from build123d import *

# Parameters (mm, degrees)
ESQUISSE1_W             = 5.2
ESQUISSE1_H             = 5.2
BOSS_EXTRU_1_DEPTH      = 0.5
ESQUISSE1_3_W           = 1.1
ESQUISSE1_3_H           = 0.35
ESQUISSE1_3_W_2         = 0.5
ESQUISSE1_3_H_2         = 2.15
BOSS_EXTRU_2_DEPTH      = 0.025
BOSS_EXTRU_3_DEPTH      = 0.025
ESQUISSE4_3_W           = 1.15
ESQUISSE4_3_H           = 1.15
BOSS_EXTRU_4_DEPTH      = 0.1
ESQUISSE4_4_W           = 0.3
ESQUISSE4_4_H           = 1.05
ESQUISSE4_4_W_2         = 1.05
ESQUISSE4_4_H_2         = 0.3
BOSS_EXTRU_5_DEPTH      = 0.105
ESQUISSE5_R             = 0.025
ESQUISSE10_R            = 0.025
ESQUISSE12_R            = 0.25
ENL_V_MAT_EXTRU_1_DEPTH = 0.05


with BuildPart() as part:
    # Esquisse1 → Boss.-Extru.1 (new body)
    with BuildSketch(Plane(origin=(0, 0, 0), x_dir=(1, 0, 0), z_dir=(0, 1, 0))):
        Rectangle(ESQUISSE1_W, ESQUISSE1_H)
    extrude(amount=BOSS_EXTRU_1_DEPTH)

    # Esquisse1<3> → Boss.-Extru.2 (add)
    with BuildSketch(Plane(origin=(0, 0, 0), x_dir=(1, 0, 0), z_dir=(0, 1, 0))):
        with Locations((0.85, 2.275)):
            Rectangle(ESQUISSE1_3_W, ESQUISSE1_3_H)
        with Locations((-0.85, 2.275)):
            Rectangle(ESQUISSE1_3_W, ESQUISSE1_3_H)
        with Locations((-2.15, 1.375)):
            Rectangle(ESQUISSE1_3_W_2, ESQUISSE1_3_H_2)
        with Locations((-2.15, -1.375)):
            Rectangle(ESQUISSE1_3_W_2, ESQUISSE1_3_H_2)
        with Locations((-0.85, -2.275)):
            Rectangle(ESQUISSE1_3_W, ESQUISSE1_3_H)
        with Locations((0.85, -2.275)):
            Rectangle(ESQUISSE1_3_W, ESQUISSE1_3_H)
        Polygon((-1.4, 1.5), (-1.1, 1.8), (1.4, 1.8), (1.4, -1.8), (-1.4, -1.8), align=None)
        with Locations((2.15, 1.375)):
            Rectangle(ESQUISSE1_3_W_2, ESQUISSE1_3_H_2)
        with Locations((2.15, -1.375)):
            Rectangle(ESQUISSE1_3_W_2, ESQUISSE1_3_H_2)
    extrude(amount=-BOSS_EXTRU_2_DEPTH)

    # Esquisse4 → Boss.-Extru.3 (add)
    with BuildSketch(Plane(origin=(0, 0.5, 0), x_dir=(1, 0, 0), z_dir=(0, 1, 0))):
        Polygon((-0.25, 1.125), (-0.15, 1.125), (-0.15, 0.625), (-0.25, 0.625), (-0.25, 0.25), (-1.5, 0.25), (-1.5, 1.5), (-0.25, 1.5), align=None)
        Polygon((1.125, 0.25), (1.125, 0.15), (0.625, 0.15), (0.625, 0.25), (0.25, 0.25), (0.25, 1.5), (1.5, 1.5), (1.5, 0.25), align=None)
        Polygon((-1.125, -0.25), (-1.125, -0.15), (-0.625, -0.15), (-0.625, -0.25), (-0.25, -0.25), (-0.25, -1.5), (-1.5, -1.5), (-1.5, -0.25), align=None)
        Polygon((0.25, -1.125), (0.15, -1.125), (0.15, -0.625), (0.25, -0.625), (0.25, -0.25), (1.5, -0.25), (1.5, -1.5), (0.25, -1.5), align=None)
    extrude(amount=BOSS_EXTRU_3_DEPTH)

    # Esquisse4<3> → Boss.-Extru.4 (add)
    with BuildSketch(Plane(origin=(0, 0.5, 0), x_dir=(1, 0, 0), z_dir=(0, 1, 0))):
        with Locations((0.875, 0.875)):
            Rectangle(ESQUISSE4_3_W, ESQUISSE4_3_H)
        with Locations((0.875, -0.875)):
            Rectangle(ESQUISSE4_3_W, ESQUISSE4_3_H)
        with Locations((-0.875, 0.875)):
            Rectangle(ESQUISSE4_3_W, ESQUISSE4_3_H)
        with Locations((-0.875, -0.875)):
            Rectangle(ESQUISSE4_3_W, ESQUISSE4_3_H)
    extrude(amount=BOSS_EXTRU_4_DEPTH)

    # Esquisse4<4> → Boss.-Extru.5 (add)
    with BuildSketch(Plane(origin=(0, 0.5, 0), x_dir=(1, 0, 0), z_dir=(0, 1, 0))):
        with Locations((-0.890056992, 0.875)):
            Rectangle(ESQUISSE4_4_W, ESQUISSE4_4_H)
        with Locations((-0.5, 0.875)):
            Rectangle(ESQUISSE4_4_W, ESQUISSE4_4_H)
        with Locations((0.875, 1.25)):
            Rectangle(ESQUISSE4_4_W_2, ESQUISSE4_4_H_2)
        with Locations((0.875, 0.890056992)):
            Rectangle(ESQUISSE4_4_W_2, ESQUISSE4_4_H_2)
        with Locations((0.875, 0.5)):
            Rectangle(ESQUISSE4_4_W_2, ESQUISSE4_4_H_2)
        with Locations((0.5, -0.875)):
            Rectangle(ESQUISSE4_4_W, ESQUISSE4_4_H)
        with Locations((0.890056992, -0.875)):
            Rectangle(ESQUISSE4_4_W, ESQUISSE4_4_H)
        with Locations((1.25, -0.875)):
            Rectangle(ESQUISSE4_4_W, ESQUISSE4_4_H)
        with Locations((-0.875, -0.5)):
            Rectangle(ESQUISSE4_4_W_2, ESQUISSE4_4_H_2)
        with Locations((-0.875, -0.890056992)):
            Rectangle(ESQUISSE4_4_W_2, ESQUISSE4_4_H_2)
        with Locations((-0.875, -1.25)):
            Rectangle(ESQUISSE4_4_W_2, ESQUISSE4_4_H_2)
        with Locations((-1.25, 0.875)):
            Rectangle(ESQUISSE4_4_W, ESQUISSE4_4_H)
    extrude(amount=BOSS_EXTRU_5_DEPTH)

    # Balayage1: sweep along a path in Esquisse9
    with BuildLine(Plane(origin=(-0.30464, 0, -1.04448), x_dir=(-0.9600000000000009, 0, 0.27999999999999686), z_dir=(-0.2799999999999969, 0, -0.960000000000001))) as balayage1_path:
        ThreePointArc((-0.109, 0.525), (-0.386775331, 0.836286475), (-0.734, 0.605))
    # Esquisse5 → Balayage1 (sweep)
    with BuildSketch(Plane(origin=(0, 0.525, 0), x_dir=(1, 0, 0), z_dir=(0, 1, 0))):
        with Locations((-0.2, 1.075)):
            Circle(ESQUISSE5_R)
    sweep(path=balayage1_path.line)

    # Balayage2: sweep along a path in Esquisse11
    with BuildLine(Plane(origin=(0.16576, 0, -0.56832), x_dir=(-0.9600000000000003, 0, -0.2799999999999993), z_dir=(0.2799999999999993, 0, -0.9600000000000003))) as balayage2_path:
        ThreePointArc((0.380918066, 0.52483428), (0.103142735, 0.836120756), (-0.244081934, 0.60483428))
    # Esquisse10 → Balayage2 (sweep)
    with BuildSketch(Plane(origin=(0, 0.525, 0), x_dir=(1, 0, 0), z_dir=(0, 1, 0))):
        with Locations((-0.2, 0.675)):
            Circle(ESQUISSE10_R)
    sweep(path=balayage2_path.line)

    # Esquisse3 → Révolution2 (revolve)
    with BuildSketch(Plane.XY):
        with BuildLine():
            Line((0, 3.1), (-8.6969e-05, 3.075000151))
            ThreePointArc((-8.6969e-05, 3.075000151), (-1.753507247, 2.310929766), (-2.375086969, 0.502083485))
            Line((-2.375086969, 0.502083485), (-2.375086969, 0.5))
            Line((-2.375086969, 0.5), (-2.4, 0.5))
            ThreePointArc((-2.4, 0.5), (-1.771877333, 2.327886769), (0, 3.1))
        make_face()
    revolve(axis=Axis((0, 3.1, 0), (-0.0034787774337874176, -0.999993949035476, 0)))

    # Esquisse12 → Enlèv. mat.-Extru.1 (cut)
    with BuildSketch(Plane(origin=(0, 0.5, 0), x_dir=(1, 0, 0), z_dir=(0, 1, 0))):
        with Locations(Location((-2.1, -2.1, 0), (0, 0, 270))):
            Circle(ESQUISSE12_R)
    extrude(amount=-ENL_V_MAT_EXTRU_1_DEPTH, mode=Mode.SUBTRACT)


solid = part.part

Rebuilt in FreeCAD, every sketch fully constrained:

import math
import FreeCAD as App
import Part
import Sketcher
from FreeCAD import Vector
Q = App.Units.Quantity

doc = App.newDocument("Part")
params = doc.addObject("Spreadsheet::Sheet", "Params")
for row, (alias, value) in enumerate([
    ("sketch1_width", "5.2 mm"),
    ("pad1_length", "0.5 mm"),
    ("sketch2_width", "1.1 mm"),
    ("sketch2_width2", "0.5 mm"),
    ("sketch2_width3", "2.8 mm"),
    ("sketch2_width4", "2.5 mm"),
    ("sketch2_height", "3.3 mm"),
    ("pad2_length", "0.025 mm"),
    ("sketch3_width", "0.1 mm"),
    ("sketch3_width2", "0.5 mm"),
    ("sketch3_width3", "1.25 mm"),
    ("pad3_length", "0.025 mm"),
    ("sketch4_width", "1.15 mm"),
    ("pad4_length", "0.1 mm"),
    ("sketch5_width", "0.3 mm"),
    ("sketch5_width2", "1.05 mm"),
    ("pad5_length", "0.105 mm"),
    ("sketch6_diameter", "0.05 mm"),
    ("sketch7_height", "0.08 mm"),
    ("sketch8_diameter", "0.05 mm"),
    ("sketch9_height", "0.08 mm"),
    ("sketch10_radius", "2.4 mm"),
    ("revolution_angle", "360 deg"),
    ("sketch11_diameter", "0.5 mm"),
    ("pocket1_length", "0.05 mm"),
], start=1):
    params.set(f"A{row}", alias)
    params.set(f"B{row}", "=" + value)
    params.setAlias(f"B{row}", alias)

body = doc.addObject("PartDesign::Body", "Body")

# Sketch on XZ plane
sketch1 = body.newObject("Sketcher::SketchObject", "Sketch")
sketch1.AttachmentSupport = (doc.getObject("XZ_Plane"), [""])
sketch1.MapMode = "FlatFace"
sketch1.addGeometry(Part.LineSegment(Vector(-2.6, -2.6, 0), Vector(-2.6, 2.6, 0)), False)
sketch1.addGeometry(Part.LineSegment(Vector(-2.6, 2.6, 0), Vector(2.6, 2.6, 0)), False)
sketch1.addGeometry(Part.LineSegment(Vector(2.6, 2.6, 0), Vector(2.6, -2.6, 0)), False)
sketch1.addGeometry(Part.LineSegment(Vector(2.6, -2.6, 0), Vector(-2.6, -2.6, 0)), False)
sketch1.addConstraint(Sketcher.Constraint("Coincident", 0, 2, 1, 1))
sketch1.addConstraint(Sketcher.Constraint("Coincident", 1, 2, 2, 1))
sketch1.addConstraint(Sketcher.Constraint("Coincident", 2, 2, 3, 1))
sketch1.addConstraint(Sketcher.Constraint("Coincident", 3, 2, 0, 1))
sketch1.addConstraint(Sketcher.Constraint("Vertical", 0))
sketch1.addConstraint(Sketcher.Constraint("Horizontal", 1))
sketch1.addConstraint(Sketcher.Constraint("Vertical", 2))
sketch1.addConstraint(Sketcher.Constraint("Horizontal", 3))
sketch1.addConstraint(Sketcher.Constraint("Symmetric", 0, 2, 2, 2, -1, 1))
sketch1.addConstraint(Sketcher.Constraint("Equal", 3, 0))
sketch1.addConstraint(Sketcher.Constraint("DistanceX", 1, 1, 1, 2, 5.2))
sketch1.setExpression("Constraints[10]", "Params.sketch1_width")
pad1 = body.newObject("PartDesign::Pad", "Pad")
pad1.Profile = sketch1
pad1.setExpression("Length", "Params.pad1_length")
pad1.Reversed = True

# Sketch on XZ plane
sketch2 = body.newObject("Sketcher::SketchObject", "Sketch001")
sketch2.AttachmentSupport = (doc.getObject("XZ_Plane"), [""])
sketch2.MapMode = "FlatFace"
sketch2.addGeometry(Part.LineSegment(Vector(0.3, -2.45, 0), Vector(0.3, -2.1, 0)), False)
sketch2.addGeometry(Part.LineSegment(Vector(0.3, -2.1, 0), Vector(1.4, -2.1, 0)), False)
sketch2.addGeometry(Part.LineSegment(Vector(1.4, -2.1, 0), Vector(1.4, -2.45, 0)), False)
sketch2.addGeometry(Part.LineSegment(Vector(1.4, -2.45, 0), Vector(0.3, -2.45, 0)), False)
sketch2.addGeometry(Part.LineSegment(Vector(-1.4, -2.45, 0), Vector(-1.4, -2.1, 0)), False)
sketch2.addGeometry(Part.LineSegment(Vector(-1.4, -2.1, 0), Vector(-0.3, -2.1, 0)), False)
sketch2.addGeometry(Part.LineSegment(Vector(-0.3, -2.1, 0), Vector(-0.3, -2.45, 0)), False)
sketch2.addGeometry(Part.LineSegment(Vector(-0.3, -2.45, 0), Vector(-1.4, -2.45, 0)), False)
sketch2.addGeometry(Part.LineSegment(Vector(-2.4, -2.45, 0), Vector(-2.4, -0.3, 0)), False)
sketch2.addGeometry(Part.LineSegment(Vector(-2.4, -0.3, 0), Vector(-1.9, -0.3, 0)), False)
sketch2.addGeometry(Part.LineSegment(Vector(-1.9, -0.3, 0), Vector(-1.9, -2.45, 0)), False)
sketch2.addGeometry(Part.LineSegment(Vector(-1.9, -2.45, 0), Vector(-2.4, -2.45, 0)), False)
sketch2.addGeometry(Part.LineSegment(Vector(-2.4, 0.3, 0), Vector(-2.4, 2.45, 0)), False)
sketch2.addGeometry(Part.LineSegment(Vector(-2.4, 2.45, 0), Vector(-1.9, 2.45, 0)), False)
sketch2.addGeometry(Part.LineSegment(Vector(-1.9, 2.45, 0), Vector(-1.9, 0.3, 0)), False)
sketch2.addGeometry(Part.LineSegment(Vector(-1.9, 0.3, 0), Vector(-2.4, 0.3, 0)), False)
sketch2.addGeometry(Part.LineSegment(Vector(-1.4, 2.1, 0), Vector(-1.4, 2.45, 0)), False)
sketch2.addGeometry(Part.LineSegment(Vector(-1.4, 2.45, 0), Vector(-0.3, 2.45, 0)), False)
sketch2.addGeometry(Part.LineSegment(Vector(-0.3, 2.45, 0), Vector(-0.3, 2.1, 0)), False)
sketch2.addGeometry(Part.LineSegment(Vector(-0.3, 2.1, 0), Vector(-1.4, 2.1, 0)), False)
sketch2.addGeometry(Part.LineSegment(Vector(0.3, 2.1, 0), Vector(0.3, 2.45, 0)), False)
sketch2.addGeometry(Part.LineSegment(Vector(0.3, 2.45, 0), Vector(1.4, 2.45, 0)), False)
sketch2.addGeometry(Part.LineSegment(Vector(1.4, 2.45, 0), Vector(1.4, 2.1, 0)), False)
sketch2.addGeometry(Part.LineSegment(Vector(1.4, 2.1, 0), Vector(0.3, 2.1, 0)), False)
sketch2.addGeometry(Part.LineSegment(Vector(-1.1, -1.8, 0), Vector(-1.4, -1.5, 0)), False)
sketch2.addGeometry(Part.LineSegment(Vector(-1.4, -1.5, 0), Vector(-1.4, 1.8, 0)), False)
sketch2.addGeometry(Part.LineSegment(Vector(-1.4, 1.8, 0), Vector(1.4, 1.8, 0)), False)
sketch2.addGeometry(Part.LineSegment(Vector(1.4, 1.8, 0), Vector(1.4, -1.8, 0)), False)
sketch2.addGeometry(Part.LineSegment(Vector(1.4, -1.8, 0), Vector(-1.1, -1.8, 0)), False)
sketch2.addGeometry(Part.LineSegment(Vector(1.9, -2.45, 0), Vector(1.9, -0.3, 0)), False)
sketch2.addGeometry(Part.LineSegment(Vector(1.9, -0.3, 0), Vector(2.4, -0.3, 0)), False)
sketch2.addGeometry(Part.LineSegment(Vector(2.4, -0.3, 0), Vector(2.4, -2.45, 0)), False)
sketch2.addGeometry(Part.LineSegment(Vector(2.4, -2.45, 0), Vector(1.9, -2.45, 0)), False)
sketch2.addGeometry(Part.LineSegment(Vector(1.9, 0.3, 0), Vector(1.9, 2.45, 0)), False)
sketch2.addGeometry(Part.LineSegment(Vector(1.9, 2.45, 0), Vector(2.4, 2.45, 0)), False)
sketch2.addGeometry(Part.LineSegment(Vector(2.4, 2.45, 0), Vector(2.4, 0.3, 0)), False)
sketch2.addGeometry(Part.LineSegment(Vector(2.4, 0.3, 0), Vector(1.9, 0.3, 0)), False)
sketch2.addConstraint(Sketcher.Constraint("Coincident", 0, 2, 1, 1))
sketch2.addConstraint(Sketcher.Constraint("Coincident", 1, 2, 2, 1))
sketch2.addConstraint(Sketcher.Constraint("Coincident", 2, 2, 3, 1))
sketch2.addConstraint(Sketcher.Constraint("Coincident", 3, 2, 0, 1))
sketch2.addConstraint(Sketcher.Constraint("Coincident", 4, 2, 5, 1))
sketch2.addConstraint(Sketcher.Constraint("Coincident", 5, 2, 6, 1))
sketch2.addConstraint(Sketcher.Constraint("Coincident", 6, 2, 7, 1))
sketch2.addConstraint(Sketcher.Constraint("Coincident", 7, 2, 4, 1))
sketch2.addConstraint(Sketcher.Constraint("Coincident", 8, 2, 9, 1))
sketch2.addConstraint(Sketcher.Constraint("Coincident", 9, 2, 10, 1))
sketch2.addConstraint(Sketcher.Constraint("Coincident", 10, 2, 11, 1))
sketch2.addConstraint(Sketcher.Constraint("Coincident", 11, 2, 8, 1))
sketch2.addConstraint(Sketcher.Constraint("Coincident", 12, 2, 13, 1))
sketch2.addConstraint(Sketcher.Constraint("Coincident", 13, 2, 14, 1))
sketch2.addConstraint(Sketcher.Constraint("Coincident", 14, 2, 15, 1))
sketch2.addConstraint(Sketcher.Constraint("Coincident", 15, 2, 12, 1))
sketch2.addConstraint(Sketcher.Constraint("Coincident", 16, 2, 17, 1))
sketch2.addConstraint(Sketcher.Constraint("Coincident", 17, 2, 18, 1))
sketch2.addConstraint(Sketcher.Constraint("Coincident", 18, 2, 19, 1))
sketch2.addConstraint(Sketcher.Constraint("Coincident", 19, 2, 16, 1))
sketch2.addConstraint(Sketcher.Constraint("Coincident", 20, 2, 21, 1))
sketch2.addConstraint(Sketcher.Constraint("Coincident", 21, 2, 22, 1))
sketch2.addConstraint(Sketcher.Constraint("Coincident", 22, 2, 23, 1))
sketch2.addConstraint(Sketcher.Constraint("Coincident", 23, 2, 20, 1))
sketch2.addConstraint(Sketcher.Constraint("Coincident", 24, 2, 25, 1))
sketch2.addConstraint(Sketcher.Constraint("Coincident", 25, 2, 26, 1))
sketch2.addConstraint(Sketcher.Constraint("Coincident", 26, 2, 27, 1))
sketch2.addConstraint(Sketcher.Constraint("Coincident", 27, 2, 28, 1))
sketch2.addConstraint(Sketcher.Constraint("Coincident", 28, 2, 24, 1))
sketch2.addConstraint(Sketcher.Constraint("Coincident", 29, 2, 30, 1))
sketch2.addConstraint(Sketcher.Constraint("Coincident", 30, 2, 31, 1))
sketch2.addConstraint(Sketcher.Constraint("Coincident", 31, 2, 32, 1))
sketch2.addConstraint(Sketcher.Constraint("Coincident", 32, 2, 29, 1))
sketch2.addConstraint(Sketcher.Constraint("Coincident", 33, 2, 34, 1))
sketch2.addConstraint(Sketcher.Constraint("Coincident", 34, 2, 35, 1))
sketch2.addConstraint(Sketcher.Constraint("Coincident", 35, 2, 36, 1))
sketch2.addConstraint(Sketcher.Constraint("Coincident", 36, 2, 33, 1))
sketch2.addConstraint(Sketcher.Constraint("Vertical", 0))
sketch2.addConstraint(Sketcher.Constraint("Horizontal", 1))
sketch2.addConstraint(Sketcher.Constraint("Vertical", 2))
sketch2.addConstraint(Sketcher.Constraint("Horizontal", 3))
sketch2.addConstraint(Sketcher.Constraint("Vertical", 4))
sketch2.addConstraint(Sketcher.Constraint("Horizontal", 5))
sketch2.addConstraint(Sketcher.Constraint("Vertical", 6))
sketch2.addConstraint(Sketcher.Constraint("Horizontal", 7))
sketch2.addConstraint(Sketcher.Constraint("Vertical", 8))
sketch2.addConstraint(Sketcher.Constraint("Horizontal", 9))
sketch2.addConstraint(Sketcher.Constraint("Vertical", 10))
sketch2.addConstraint(Sketcher.Constraint("Horizontal", 11))
sketch2.addConstraint(Sketcher.Constraint("Vertical", 12))
sketch2.addConstraint(Sketcher.Constraint("Horizontal", 13))
sketch2.addConstraint(Sketcher.Constraint("Vertical", 14))
sketch2.addConstraint(Sketcher.Constraint("Horizontal", 15))
sketch2.addConstraint(Sketcher.Constraint("Vertical", 16))
sketch2.addConstraint(Sketcher.Constraint("Horizontal", 17))
sketch2.addConstraint(Sketcher.Constraint("Vertical", 18))
sketch2.addConstraint(Sketcher.Constraint("Horizontal", 19))
sketch2.addConstraint(Sketcher.Constraint("Vertical", 20))
sketch2.addConstraint(Sketcher.Constraint("Horizontal", 21))
sketch2.addConstraint(Sketcher.Constraint("Vertical", 22))
sketch2.addConstraint(Sketcher.Constraint("Horizontal", 23))
sketch2.addConstraint(Sketcher.Constraint("Vertical", 25))
sketch2.addConstraint(Sketcher.Constraint("Horizontal", 26))
sketch2.addConstraint(Sketcher.Constraint("Vertical", 27))
sketch2.addConstraint(Sketcher.Constraint("Horizontal", 28))
sketch2.addConstraint(Sketcher.Constraint("Vertical", 29))
sketch2.addConstraint(Sketcher.Constraint("Horizontal", 30))
sketch2.addConstraint(Sketcher.Constraint("Vertical", 31))
sketch2.addConstraint(Sketcher.Constraint("Horizontal", 32))
sketch2.addConstraint(Sketcher.Constraint("Vertical", 33))
sketch2.addConstraint(Sketcher.Constraint("Horizontal", 34))
sketch2.addConstraint(Sketcher.Constraint("Vertical", 35))
sketch2.addConstraint(Sketcher.Constraint("Horizontal", 36))
sketch2.addConstraint(Sketcher.Constraint("Symmetric", 2, 2, 16, 2, -1, 1))
sketch2.addConstraint(Sketcher.Constraint("Symmetric", 0, 2, 18, 2, -1, 1))
sketch2.addConstraint(Sketcher.Constraint("Symmetric", 6, 2, 20, 2, -1, 1))
sketch2.addConstraint(Sketcher.Constraint("Symmetric", 4, 2, 22, 2, -1, 1))
sketch2.addConstraint(Sketcher.Constraint("Symmetric", 25, 2, 27, 2, -1, 1))
sketch2.addConstraint(Sketcher.Constraint("Symmetric", 14, 2, 29, 2, -1, 1))
sketch2.addConstraint(Sketcher.Constraint("Symmetric", 12, 2, 31, 2, -1, 1))
sketch2.addConstraint(Sketcher.Constraint("Symmetric", 10, 2, 33, 2, -1, 1))
sketch2.addConstraint(Sketcher.Constraint("Symmetric", 8, 2, 35, 2, -1, 1))
sketch2.addConstraint(Sketcher.Constraint("Symmetric", 1, 2, 4, 2, -2))
sketch2.addConstraint(Sketcher.Constraint("Symmetric", 3, 2, 6, 2, -2))
sketch2.addConstraint(Sketcher.Constraint("Symmetric", 9, 2, 29, 2, -2))
sketch2.addConstraint(Sketcher.Constraint("Symmetric", 11, 2, 31, 2, -2))
sketch2.addConstraint(Sketcher.Constraint("Horizontal", 7, 2, 10, 2))
sketch2.addConstraint(Sketcher.Constraint("Vertical", 19, 2, 24, 2))
sketch2.addConstraint(Sketcher.Constraint("Angle", 24, Q("135 deg")))
sketch2.addConstraint(Sketcher.Constraint("DistanceX", 1, 1, 1, 2, 1.1))
sketch2.addConstraint(Sketcher.Constraint("DistanceX", 9, 1, 9, 2, 0.5))
sketch2.addConstraint(Sketcher.Constraint("DistanceX", 26, 1, 26, 2, 2.8))
sketch2.addConstraint(Sketcher.Constraint("DistanceX", 28, 2, 28, 1, 2.5))
sketch2.addConstraint(Sketcher.Constraint("DistanceY", 25, 1, 25, 2, 3.3))
sketch2.addConstraint(Sketcher.Constraint("DistanceX", 8, 2, 4, 2, 1.0))
sketch2.addConstraint(Sketcher.Constraint("DistanceY", 0, 1, 0, 2, 0.35))
sketch2.addConstraint(Sketcher.Constraint("DistanceY", 8, 1, 8, 2, 2.15))
sketch2.addConstraint(Sketcher.Constraint("DistanceY", 0, 2, -1, 1, 2.1))
sketch2.setExpression("Constraints[89]", "Params.sketch2_width")
sketch2.setExpression("Constraints[90]", "Params.sketch2_width2")
sketch2.setExpression("Constraints[91]", "Params.sketch2_width3")
sketch2.setExpression("Constraints[92]", "Params.sketch2_width4")
sketch2.setExpression("Constraints[93]", "Params.sketch2_height")
pad2 = body.newObject("PartDesign::Pad", "Pad001")
pad2.Profile = sketch2
pad2.setExpression("Length", "Params.pad2_length")

# Sketch on XZ plane
sketch3 = body.newObject("Sketcher::SketchObject", "Sketch002")
sketch3.AttachmentSupport = (doc.getObject("XZ_Plane"), [""])
sketch3.MapMode = "FlatFace"
sketch3.AttachmentOffset = App.Placement(Vector(0, 0, -0.5), App.Rotation())
sketch3.addGeometry(Part.LineSegment(Vector(-0.15, -1.125, 0), Vector(-0.25, -1.125, 0)), False)
sketch3.addGeometry(Part.LineSegment(Vector(-0.25, -1.125, 0), Vector(-0.25, -1.5, 0)), False)
sketch3.addGeometry(Part.LineSegment(Vector(-0.25, -1.5, 0), Vector(-1.5, -1.5, 0)), False)
sketch3.addGeometry(Part.LineSegment(Vector(-1.5, -1.5, 0), Vector(-1.5, -0.25, 0)), False)
sketch3.addGeometry(Part.LineSegment(Vector(-1.5, -0.25, 0), Vector(-0.25, -0.25, 0)), False)
sketch3.addGeometry(Part.LineSegment(Vector(-0.25, -0.25, 0), Vector(-0.25, -0.625, 0)), False)
sketch3.addGeometry(Part.LineSegment(Vector(-0.25, -0.625, 0), Vector(-0.15, -0.625, 0)), False)
sketch3.addGeometry(Part.LineSegment(Vector(-0.15, -0.625, 0), Vector(-0.15, -1.125, 0)), False)
sketch3.addGeometry(Part.LineSegment(Vector(1.125, -0.15, 0), Vector(1.125, -0.25, 0)), False)
sketch3.addGeometry(Part.LineSegment(Vector(1.125, -0.25, 0), Vector(1.5, -0.25, 0)), False)
sketch3.addGeometry(Part.LineSegment(Vector(1.5, -0.25, 0), Vector(1.5, -1.5, 0)), False)
sketch3.addGeometry(Part.LineSegment(Vector(1.5, -1.5, 0), Vector(0.25, -1.5, 0)), False)
sketch3.addGeometry(Part.LineSegment(Vector(0.25, -1.5, 0), Vector(0.25, -0.25, 0)), False)
sketch3.addGeometry(Part.LineSegment(Vector(0.25, -0.25, 0), Vector(0.625, -0.25, 0)), False)
sketch3.addGeometry(Part.LineSegment(Vector(0.625, -0.25, 0), Vector(0.625, -0.15, 0)), False)
sketch3.addGeometry(Part.LineSegment(Vector(0.625, -0.15, 0), Vector(1.125, -0.15, 0)), False)
sketch3.addGeometry(Part.LineSegment(Vector(-1.125, 0.15, 0), Vector(-1.125, 0.25, 0)), False)
sketch3.addGeometry(Part.LineSegment(Vector(-1.125, 0.25, 0), Vector(-1.5, 0.25, 0)), False)
sketch3.addGeometry(Part.LineSegment(Vector(-1.5, 0.25, 0), Vector(-1.5, 1.5, 0)), False)
sketch3.addGeometry(Part.LineSegment(Vector(-1.5, 1.5, 0), Vector(-0.25, 1.5, 0)), False)
sketch3.addGeometry(Part.LineSegment(Vector(-0.25, 1.5, 0), Vector(-0.25, 0.25, 0)), False)
sketch3.addGeometry(Part.LineSegment(Vector(-0.25, 0.25, 0), Vector(-0.625, 0.25, 0)), False)
sketch3.addGeometry(Part.LineSegment(Vector(-0.625, 0.25, 0), Vector(-0.625, 0.15, 0)), False)
sketch3.addGeometry(Part.LineSegment(Vector(-0.625, 0.15, 0), Vector(-1.125, 0.15, 0)), False)
sketch3.addGeometry(Part.LineSegment(Vector(0.15, 1.125, 0), Vector(0.25, 1.125, 0)), False)
sketch3.addGeometry(Part.LineSegment(Vector(0.25, 1.125, 0), Vector(0.25, 1.5, 0)), False)
sketch3.addGeometry(Part.LineSegment(Vector(0.25, 1.5, 0), Vector(1.5, 1.5, 0)), False)
sketch3.addGeometry(Part.LineSegment(Vector(1.5, 1.5, 0), Vector(1.5, 0.25, 0)), False)
sketch3.addGeometry(Part.LineSegment(Vector(1.5, 0.25, 0), Vector(0.25, 0.25, 0)), False)
sketch3.addGeometry(Part.LineSegment(Vector(0.25, 0.25, 0), Vector(0.25, 0.625, 0)), False)
sketch3.addGeometry(Part.LineSegment(Vector(0.25, 0.625, 0), Vector(0.15, 0.625, 0)), False)
sketch3.addGeometry(Part.LineSegment(Vector(0.15, 0.625, 0), Vector(0.15, 1.125, 0)), False)
sketch3.addConstraint(Sketcher.Constraint("Coincident", 0, 2, 1, 1))
sketch3.addConstraint(Sketcher.Constraint("Coincident", 1, 2, 2, 1))
sketch3.addConstraint(Sketcher.Constraint("Coincident", 2, 2, 3, 1))
sketch3.addConstraint(Sketcher.Constraint("Coincident", 3, 2, 4, 1))
sketch3.addConstraint(Sketcher.Constraint("Coincident", 4, 2, 5, 1))
sketch3.addConstraint(Sketcher.Constraint("Coincident", 5, 2, 6, 1))
sketch3.addConstraint(Sketcher.Constraint("Coincident", 6, 2, 7, 1))
sketch3.addConstraint(Sketcher.Constraint("Coincident", 7, 2, 0, 1))
sketch3.addConstraint(Sketcher.Constraint("Coincident", 8, 2, 9, 1))
sketch3.addConstraint(Sketcher.Constraint("Coincident", 9, 2, 10, 1))
sketch3.addConstraint(Sketcher.Constraint("Coincident", 10, 2, 11, 1))
sketch3.addConstraint(Sketcher.Constraint("Coincident", 11, 2, 12, 1))
sketch3.addConstraint(Sketcher.Constraint("Coincident", 12, 2, 13, 1))
sketch3.addConstraint(Sketcher.Constraint("Coincident", 13, 2, 14, 1))
sketch3.addConstraint(Sketcher.Constraint("Coincident", 14, 2, 15, 1))
sketch3.addConstraint(Sketcher.Constraint("Coincident", 15, 2, 8, 1))
sketch3.addConstraint(Sketcher.Constraint("Coincident", 16, 2, 17, 1))
sketch3.addConstraint(Sketcher.Constraint("Coincident", 17, 2, 18, 1))
sketch3.addConstraint(Sketcher.Constraint("Coincident", 18, 2, 19, 1))
sketch3.addConstraint(Sketcher.Constraint("Coincident", 19, 2, 20, 1))
sketch3.addConstraint(Sketcher.Constraint("Coincident", 20, 2, 21, 1))
sketch3.addConstraint(Sketcher.Constraint("Coincident", 21, 2, 22, 1))
sketch3.addConstraint(Sketcher.Constraint("Coincident", 22, 2, 23, 1))
sketch3.addConstraint(Sketcher.Constraint("Coincident", 23, 2, 16, 1))
sketch3.addConstraint(Sketcher.Constraint("Coincident", 24, 2, 25, 1))
sketch3.addConstraint(Sketcher.Constraint("Coincident", 25, 2, 26, 1))
sketch3.addConstraint(Sketcher.Constraint("Coincident", 26, 2, 27, 1))
sketch3.addConstraint(Sketcher.Constraint("Coincident", 27, 2, 28, 1))
sketch3.addConstraint(Sketcher.Constraint("Coincident", 28, 2, 29, 1))
sketch3.addConstraint(Sketcher.Constraint("Coincident", 29, 2, 30, 1))
sketch3.addConstraint(Sketcher.Constraint("Coincident", 30, 2, 31, 1))
sketch3.addConstraint(Sketcher.Constraint("Coincident", 31, 2, 24, 1))
sketch3.addConstraint(Sketcher.Constraint("Horizontal", 0))
sketch3.addConstraint(Sketcher.Constraint("Vertical", 1))
sketch3.addConstraint(Sketcher.Constraint("Horizontal", 2))
sketch3.addConstraint(Sketcher.Constraint("Vertical", 3))
sketch3.addConstraint(Sketcher.Constraint("Horizontal", 4))
sketch3.addConstraint(Sketcher.Constraint("Vertical", 5))
sketch3.addConstraint(Sketcher.Constraint("Horizontal", 6))
sketch3.addConstraint(Sketcher.Constraint("Vertical", 7))
sketch3.addConstraint(Sketcher.Constraint("Vertical", 8))
sketch3.addConstraint(Sketcher.Constraint("Horizontal", 9))
sketch3.addConstraint(Sketcher.Constraint("Vertical", 10))
sketch3.addConstraint(Sketcher.Constraint("Horizontal", 11))
sketch3.addConstraint(Sketcher.Constraint("Vertical", 12))
sketch3.addConstraint(Sketcher.Constraint("Horizontal", 13))
sketch3.addConstraint(Sketcher.Constraint("Vertical", 14))
sketch3.addConstraint(Sketcher.Constraint("Horizontal", 15))
sketch3.addConstraint(Sketcher.Constraint("Vertical", 16))
sketch3.addConstraint(Sketcher.Constraint("Horizontal", 17))
sketch3.addConstraint(Sketcher.Constraint("Vertical", 18))
sketch3.addConstraint(Sketcher.Constraint("Horizontal", 19))
sketch3.addConstraint(Sketcher.Constraint("Vertical", 20))
sketch3.addConstraint(Sketcher.Constraint("Horizontal", 21))
sketch3.addConstraint(Sketcher.Constraint("Vertical", 22))
sketch3.addConstraint(Sketcher.Constraint("Horizontal", 23))
sketch3.addConstraint(Sketcher.Constraint("Horizontal", 24))
sketch3.addConstraint(Sketcher.Constraint("Vertical", 25))
sketch3.addConstraint(Sketcher.Constraint("Horizontal", 26))
sketch3.addConstraint(Sketcher.Constraint("Vertical", 27))
sketch3.addConstraint(Sketcher.Constraint("Horizontal", 28))
sketch3.addConstraint(Sketcher.Constraint("Vertical", 29))
sketch3.addConstraint(Sketcher.Constraint("Horizontal", 30))
sketch3.addConstraint(Sketcher.Constraint("Vertical", 31))
sketch3.addConstraint(Sketcher.Constraint("Symmetric", 8, 2, 16, 2, -1, 1))
sketch3.addConstraint(Sketcher.Constraint("Symmetric", 10, 2, 18, 2, -1, 1))
sketch3.addConstraint(Sketcher.Constraint("Symmetric", 12, 2, 20, 2, -1, 1))
sketch3.addConstraint(Sketcher.Constraint("Symmetric", 14, 2, 22, 2, -1, 1))
sketch3.addConstraint(Sketcher.Constraint("Symmetric", 0, 2, 24, 2, -1, 1))
sketch3.addConstraint(Sketcher.Constraint("Symmetric", 2, 2, 26, 2, -1, 1))
sketch3.addConstraint(Sketcher.Constraint("Symmetric", 4, 2, 28, 2, -1, 1))
sketch3.addConstraint(Sketcher.Constraint("Symmetric", 6, 2, 30, 2, -1, 1))
sketch3.addConstraint(Sketcher.Constraint("Symmetric", 3, 2, 9, 2, -2))
sketch3.addConstraint(Sketcher.Constraint("Symmetric", 1, 2, 11, 2, -2))
sketch3.addConstraint(Sketcher.Constraint("Symmetric", 4, 2, 12, 2, -2))
sketch3.addConstraint(Sketcher.Constraint("Equal", 9, 13))
sketch3.addConstraint(Sketcher.Constraint("Equal", 21, 1))
sketch3.addConstraint(Sketcher.Constraint("Equal", 28, 3))
sketch3.addConstraint(Sketcher.Constraint("Equal", 1, 5))
sketch3.addConstraint(Sketcher.Constraint("Equal", 30, 8))
sketch3.addConstraint(Sketcher.Constraint("DistanceX", 0, 2, 0, 1, 0.1))
sketch3.addConstraint(Sketcher.Constraint("DistanceX", 15, 1, 15, 2, 0.5))
sketch3.addConstraint(Sketcher.Constraint("DistanceX", 2, 2, 2, 1, 1.25))
sketch3.addConstraint(Sketcher.Constraint("DistanceY", 1, 2, -1, 1, 1.5))
sketch3.addConstraint(Sketcher.Constraint("DistanceX", 2, 2, -1, 1, 1.5))
sketch3.setExpression("Constraints[80]", "Params.sketch3_width")
sketch3.setExpression("Constraints[81]", "Params.sketch3_width2")
sketch3.setExpression("Constraints[82]", "Params.sketch3_width3")
pad3 = body.newObject("PartDesign::Pad", "Pad002")
pad3.Profile = sketch3
pad3.setExpression("Length", "Params.pad3_length")
pad3.Reversed = True

# Sketch on XZ plane
sketch4 = body.newObject("Sketcher::SketchObject", "Sketch003")
sketch4.AttachmentSupport = (doc.getObject("XZ_Plane"), [""])
sketch4.MapMode = "FlatFace"
sketch4.AttachmentOffset = App.Placement(Vector(0, 0, -0.5), App.Rotation())
sketch4.addGeometry(Part.LineSegment(Vector(0.3, -1.45, 0), Vector(0.3, -0.3, 0)), False)
sketch4.addGeometry(Part.LineSegment(Vector(0.3, -0.3, 0), Vector(1.45, -0.3, 0)), False)
sketch4.addGeometry(Part.LineSegment(Vector(1.45, -0.3, 0), Vector(1.45, -1.45, 0)), False)
sketch4.addGeometry(Part.LineSegment(Vector(1.45, -1.45, 0), Vector(0.3, -1.45, 0)), False)
sketch4.addGeometry(Part.LineSegment(Vector(0.3, 0.3, 0), Vector(0.3, 1.45, 0)), False)
sketch4.addGeometry(Part.LineSegment(Vector(0.3, 1.45, 0), Vector(1.45, 1.45, 0)), False)
sketch4.addGeometry(Part.LineSegment(Vector(1.45, 1.45, 0), Vector(1.45, 0.3, 0)), False)
sketch4.addGeometry(Part.LineSegment(Vector(1.45, 0.3, 0), Vector(0.3, 0.3, 0)), False)
sketch4.addGeometry(Part.LineSegment(Vector(-1.45, -1.45, 0), Vector(-1.45, -0.3, 0)), False)
sketch4.addGeometry(Part.LineSegment(Vector(-1.45, -0.3, 0), Vector(-0.3, -0.3, 0)), False)
sketch4.addGeometry(Part.LineSegment(Vector(-0.3, -0.3, 0), Vector(-0.3, -1.45, 0)), False)
sketch4.addGeometry(Part.LineSegment(Vector(-0.3, -1.45, 0), Vector(-1.45, -1.45, 0)), False)
sketch4.addGeometry(Part.LineSegment(Vector(-1.45, 0.3, 0), Vector(-1.45, 1.45, 0)), False)
sketch4.addGeometry(Part.LineSegment(Vector(-1.45, 1.45, 0), Vector(-0.3, 1.45, 0)), False)
sketch4.addGeometry(Part.LineSegment(Vector(-0.3, 1.45, 0), Vector(-0.3, 0.3, 0)), False)
sketch4.addGeometry(Part.LineSegment(Vector(-0.3, 0.3, 0), Vector(-1.45, 0.3, 0)), False)
sketch4.addConstraint(Sketcher.Constraint("Coincident", 0, 2, 1, 1))
sketch4.addConstraint(Sketcher.Constraint("Coincident", 1, 2, 2, 1))
sketch4.addConstraint(Sketcher.Constraint("Coincident", 2, 2, 3, 1))
sketch4.addConstraint(Sketcher.Constraint("Coincident", 3, 2, 0, 1))
sketch4.addConstraint(Sketcher.Constraint("Coincident", 4, 2, 5, 1))
sketch4.addConstraint(Sketcher.Constraint("Coincident", 5, 2, 6, 1))
sketch4.addConstraint(Sketcher.Constraint("Coincident", 6, 2, 7, 1))
sketch4.addConstraint(Sketcher.Constraint("Coincident", 7, 2, 4, 1))
sketch4.addConstraint(Sketcher.Constraint("Coincident", 8, 2, 9, 1))
sketch4.addConstraint(Sketcher.Constraint("Coincident", 9, 2, 10, 1))
sketch4.addConstraint(Sketcher.Constraint("Coincident", 10, 2, 11, 1))
sketch4.addConstraint(Sketcher.Constraint("Coincident", 11, 2, 8, 1))
sketch4.addConstraint(Sketcher.Constraint("Coincident", 12, 2, 13, 1))
sketch4.addConstraint(Sketcher.Constraint("Coincident", 13, 2, 14, 1))
sketch4.addConstraint(Sketcher.Constraint("Coincident", 14, 2, 15, 1))
sketch4.addConstraint(Sketcher.Constraint("Coincident", 15, 2, 12, 1))
sketch4.addConstraint(Sketcher.Constraint("Vertical", 0))
sketch4.addConstraint(Sketcher.Constraint("Horizontal", 1))
sketch4.addConstraint(Sketcher.Constraint("Vertical", 2))
sketch4.addConstraint(Sketcher.Constraint("Horizontal", 3))
sketch4.addConstraint(Sketcher.Constraint("Vertical", 4))
sketch4.addConstraint(Sketcher.Constraint("Horizontal", 5))
sketch4.addConstraint(Sketcher.Constraint("Vertical", 6))
sketch4.addConstraint(Sketcher.Constraint("Horizontal", 7))
sketch4.addConstraint(Sketcher.Constraint("Vertical", 8))
sketch4.addConstraint(Sketcher.Constraint("Horizontal", 9))
sketch4.addConstraint(Sketcher.Constraint("Vertical", 10))
sketch4.addConstraint(Sketcher.Constraint("Horizontal", 11))
sketch4.addConstraint(Sketcher.Constraint("Vertical", 12))
sketch4.addConstraint(Sketcher.Constraint("Horizontal", 13))
sketch4.addConstraint(Sketcher.Constraint("Vertical", 14))
sketch4.addConstraint(Sketcher.Constraint("Horizontal", 15))
sketch4.addConstraint(Sketcher.Constraint("Symmetric", 6, 2, 8, 2, -1, 1))
sketch4.addConstraint(Sketcher.Constraint("Symmetric", 4, 2, 10, 2, -1, 1))
sketch4.addConstraint(Sketcher.Constraint("Symmetric", 2, 2, 12, 2, -1, 1))
sketch4.addConstraint(Sketcher.Constraint("Symmetric", 0, 2, 14, 2, -1, 1))
sketch4.addConstraint(Sketcher.Constraint("Symmetric", 1, 2, 8, 2, -2))
sketch4.addConstraint(Sketcher.Constraint("Symmetric", 3, 2, 10, 2, -2))
sketch4.addConstraint(Sketcher.Constraint("Equal", 15, 0))
sketch4.addConstraint(Sketcher.Constraint("DistanceX", 1, 1, 1, 2, 1.15))
sketch4.addConstraint(Sketcher.Constraint("DistanceX", -1, 1, 0, 2, 0.3))
sketch4.addConstraint(Sketcher.Constraint("DistanceY", 0, 2, -1, 1, 0.3))
sketch4.setExpression("Constraints[39]", "Params.sketch4_width")
pad4 = body.newObject("PartDesign::Pad", "Pad003")
pad4.Profile = sketch4
pad4.setExpression("Length", "Params.pad4_length")
pad4.Reversed = True

# Sketch on XZ plane
sketch5 = body.newObject("Sketcher::SketchObject", "Sketch004")
sketch5.AttachmentSupport = (doc.getObject("XZ_Plane"), [""])
sketch5.MapMode = "FlatFace"
sketch5.AttachmentOffset = App.Placement(Vector(0, 0, -0.5), App.Rotation())
sketch5.addGeometry(Part.LineSegment(Vector(-1.040057, -1.4, 0), Vector(-1.040057, -0.35, 0)), False)
sketch5.addGeometry(Part.LineSegment(Vector(-1.040057, -0.35, 0), Vector(-0.740057, -0.35, 0)), False)
sketch5.addGeometry(Part.LineSegment(Vector(-0.740057, -0.35, 0), Vector(-0.740057, -1.4, 0)), False)
sketch5.addGeometry(Part.LineSegment(Vector(-0.740057, -1.4, 0), Vector(-1.040057, -1.4, 0)), False)
sketch5.addGeometry(Part.LineSegment(Vector(-0.65, -1.4, 0), Vector(-0.65, -0.35, 0)), False)
sketch5.addGeometry(Part.LineSegment(Vector(-0.65, -0.35, 0), Vector(-0.35, -0.35, 0)), False)
sketch5.addGeometry(Part.LineSegment(Vector(-0.35, -0.35, 0), Vector(-0.35, -1.4, 0)), False)
sketch5.addGeometry(Part.LineSegment(Vector(-0.35, -1.4, 0), Vector(-0.65, -1.4, 0)), False)
sketch5.addGeometry(Part.LineSegment(Vector(0.35, -1.4, 0), Vector(0.35, -1.1, 0)), False)
sketch5.addGeometry(Part.LineSegment(Vector(0.35, -1.1, 0), Vector(1.4, -1.1, 0)), False)
sketch5.addGeometry(Part.LineSegment(Vector(1.4, -1.1, 0), Vector(1.4, -1.4, 0)), False)
sketch5.addGeometry(Part.LineSegment(Vector(1.4, -1.4, 0), Vector(0.35, -1.4, 0)), False)
sketch5.addGeometry(Part.LineSegment(Vector(0.35, -1.040057, 0), Vector(0.35, -0.740057, 0)), False)
sketch5.addGeometry(Part.LineSegment(Vector(0.35, -0.740057, 0), Vector(1.4, -0.740057, 0)), False)
sketch5.addGeometry(Part.LineSegment(Vector(1.4, -0.740057, 0), Vector(1.4, -1.040057, 0)), False)
sketch5.addGeometry(Part.LineSegment(Vector(1.4, -1.040057, 0), Vector(0.35, -1.040057, 0)), False)
sketch5.addGeometry(Part.LineSegment(Vector(0.35, -0.65, 0), Vector(0.35, -0.35, 0)), False)
sketch5.addGeometry(Part.LineSegment(Vector(0.35, -0.35, 0), Vector(1.4, -0.35, 0)), False)
sketch5.addGeometry(Part.LineSegment(Vector(1.4, -0.35, 0), Vector(1.4, -0.65, 0)), False)
sketch5.addGeometry(Part.LineSegment(Vector(1.4, -0.65, 0), Vector(0.35, -0.65, 0)), False)
sketch5.addGeometry(Part.LineSegment(Vector(0.35, 0.35, 0), Vector(0.35, 1.4, 0)), False)
sketch5.addGeometry(Part.LineSegment(Vector(0.35, 1.4, 0), Vector(0.65, 1.4, 0)), False)
sketch5.addGeometry(Part.LineSegment(Vector(0.65, 1.4, 0), Vector(0.65, 0.35, 0)), False)
sketch5.addGeometry(Part.LineSegment(Vector(0.65, 0.35, 0), Vector(0.35, 0.35, 0)), False)
sketch5.addGeometry(Part.LineSegment(Vector(0.740057, 0.35, 0), Vector(0.740057, 1.4, 0)), False)
sketch5.addGeometry(Part.LineSegment(Vector(0.740057, 1.4, 0), Vector(1.040057, 1.4, 0)), False)
sketch5.addGeometry(Part.LineSegment(Vector(1.040057, 1.4, 0), Vector(1.040057, 0.35, 0)), False)
sketch5.addGeometry(Part.LineSegment(Vector(1.040057, 0.35, 0), Vector(0.740057, 0.35, 0)), False)
sketch5.addGeometry(Part.LineSegment(Vector(1.1, 0.35, 0), Vector(1.1, 1.4, 0)), False)
sketch5.addGeometry(Part.LineSegment(Vector(1.1, 1.4, 0), Vector(1.4, 1.4, 0)), False)
sketch5.addGeometry(Part.LineSegment(Vector(1.4, 1.4, 0), Vector(1.4, 0.35, 0)), False)
sketch5.addGeometry(Part.LineSegment(Vector(1.4, 0.35, 0), Vector(1.1, 0.35, 0)), False)
sketch5.addGeometry(Part.LineSegment(Vector(-1.4, 0.35, 0), Vector(-1.4, 0.65, 0)), False)
sketch5.addGeometry(Part.LineSegment(Vector(-1.4, 0.65, 0), Vector(-0.35, 0.65, 0)), False)
sketch5.addGeometry(Part.LineSegment(Vector(-0.35, 0.65, 0), Vector(-0.35, 0.35, 0)), False)
sketch5.addGeometry(Part.LineSegment(Vector(-0.35, 0.35, 0), Vector(-1.4, 0.35, 0)), False)
sketch5.addGeometry(Part.LineSegment(Vector(-1.4, 0.740057, 0), Vector(-1.4, 1.040057, 0)), False)
sketch5.addGeometry(Part.LineSegment(Vector(-1.4, 1.040057, 0), Vector(-0.35, 1.040057, 0)), False)
sketch5.addGeometry(Part.LineSegment(Vector(-0.35, 1.040057, 0), Vector(-0.35, 0.740057, 0)), False)
sketch5.addGeometry(Part.LineSegment(Vector(-0.35, 0.740057, 0), Vector(-1.4, 0.740057, 0)), False)
sketch5.addGeometry(Part.LineSegment(Vector(-1.4, 1.1, 0), Vector(-1.4, 1.4, 0)), False)
sketch5.addGeometry(Part.LineSegment(Vector(-1.4, 1.4, 0), Vector(-0.35, 1.4, 0)), False)
sketch5.addGeometry(Part.LineSegment(Vector(-0.35, 1.4, 0), Vector(-0.35, 1.1, 0)), False)
sketch5.addGeometry(Part.LineSegment(Vector(-0.35, 1.1, 0), Vector(-1.4, 1.1, 0)), False)
sketch5.addGeometry(Part.LineSegment(Vector(-1.4, -1.4, 0), Vector(-1.4, -0.35, 0)), False)
sketch5.addGeometry(Part.LineSegment(Vector(-1.4, -0.35, 0), Vector(-1.1, -0.35, 0)), False)
sketch5.addGeometry(Part.LineSegment(Vector(-1.1, -0.35, 0), Vector(-1.1, -1.4, 0)), False)
sketch5.addGeometry(Part.LineSegment(Vector(-1.1, -1.4, 0), Vector(-1.4, -1.4, 0)), False)
sketch5.addConstraint(Sketcher.Constraint("Coincident", 0, 2, 1, 1))
sketch5.addConstraint(Sketcher.Constraint("Coincident", 1, 2, 2, 1))
sketch5.addConstraint(Sketcher.Constraint("Coincident", 2, 2, 3, 1))
sketch5.addConstraint(Sketcher.Constraint("Coincident", 3, 2, 0, 1))
sketch5.addConstraint(Sketcher.Constraint("Coincident", 4, 2, 5, 1))
sketch5.addConstraint(Sketcher.Constraint("Coincident", 5, 2, 6, 1))
sketch5.addConstraint(Sketcher.Constraint("Coincident", 6, 2, 7, 1))
sketch5.addConstraint(Sketcher.Constraint("Coincident", 7, 2, 4, 1))
sketch5.addConstraint(Sketcher.Constraint("Coincident", 8, 2, 9, 1))
sketch5.addConstraint(Sketcher.Constraint("Coincident", 9, 2, 10, 1))
sketch5.addConstraint(Sketcher.Constraint("Coincident", 10, 2, 11, 1))
sketch5.addConstraint(Sketcher.Constraint("Coincident", 11, 2, 8, 1))
sketch5.addConstraint(Sketcher.Constraint("Coincident", 12, 2, 13, 1))
sketch5.addConstraint(Sketcher.Constraint("Coincident", 13, 2, 14, 1))
sketch5.addConstraint(Sketcher.Constraint("Coincident", 14, 2, 15, 1))
sketch5.addConstraint(Sketcher.Constraint("Coincident", 15, 2, 12, 1))
sketch5.addConstraint(Sketcher.Constraint("Coincident", 16, 2, 17, 1))
sketch5.addConstraint(Sketcher.Constraint("Coincident", 17, 2, 18, 1))
sketch5.addConstraint(Sketcher.Constraint("Coincident", 18, 2, 19, 1))
sketch5.addConstraint(Sketcher.Constraint("Coincident", 19, 2, 16, 1))
sketch5.addConstraint(Sketcher.Constraint("Coincident", 20, 2, 21, 1))
sketch5.addConstraint(Sketcher.Constraint("Coincident", 21, 2, 22, 1))
sketch5.addConstraint(Sketcher.Constraint("Coincident", 22, 2, 23, 1))
sketch5.addConstraint(Sketcher.Constraint("Coincident", 23, 2, 20, 1))
sketch5.addConstraint(Sketcher.Constraint("Coincident", 24, 2, 25, 1))
sketch5.addConstraint(Sketcher.Constraint("Coincident", 25, 2, 26, 1))
sketch5.addConstraint(Sketcher.Constraint("Coincident", 26, 2, 27, 1))
sketch5.addConstraint(Sketcher.Constraint("Coincident", 27, 2, 24, 1))
sketch5.addConstraint(Sketcher.Constraint("Coincident", 28, 2, 29, 1))
sketch5.addConstraint(Sketcher.Constraint("Coincident", 29, 2, 30, 1))
sketch5.addConstraint(Sketcher.Constraint("Coincident", 30, 2, 31, 1))
sketch5.addConstraint(Sketcher.Constraint("Coincident", 31, 2, 28, 1))
sketch5.addConstraint(Sketcher.Constraint("Coincident", 32, 2, 33, 1))
sketch5.addConstraint(Sketcher.Constraint("Coincident", 33, 2, 34, 1))
sketch5.addConstraint(Sketcher.Constraint("Coincident", 34, 2, 35, 1))
sketch5.addConstraint(Sketcher.Constraint("Coincident", 35, 2, 32, 1))
sketch5.addConstraint(Sketcher.Constraint("Coincident", 36, 2, 37, 1))
sketch5.addConstraint(Sketcher.Constraint("Coincident", 37, 2, 38, 1))
sketch5.addConstraint(Sketcher.Constraint("Coincident", 38, 2, 39, 1))
sketch5.addConstraint(Sketcher.Constraint("Coincident", 39, 2, 36, 1))
sketch5.addConstraint(Sketcher.Constraint("Coincident", 40, 2, 41, 1))
sketch5.addConstraint(Sketcher.Constraint("Coincident", 41, 2, 42, 1))
sketch5.addConstraint(Sketcher.Constraint("Coincident", 42, 2, 43, 1))
sketch5.addConstraint(Sketcher.Constraint("Coincident", 43, 2, 40, 1))
sketch5.addConstraint(Sketcher.Constraint("Coincident", 44, 2, 45, 1))
sketch5.addConstraint(Sketcher.Constraint("Coincident", 45, 2, 46, 1))
sketch5.addConstraint(Sketcher.Constraint("Coincident", 46, 2, 47, 1))
sketch5.addConstraint(Sketcher.Constraint("Coincident", 47, 2, 44, 1))
sketch5.addConstraint(Sketcher.Constraint("Vertical", 0))
sketch5.addConstraint(Sketcher.Constraint("Horizontal", 1))
sketch5.addConstraint(Sketcher.Constraint("Vertical", 2))
sketch5.addConstraint(Sketcher.Constraint("Horizontal", 3))
sketch5.addConstraint(Sketcher.Constraint("Vertical", 4))
sketch5.addConstraint(Sketcher.Constraint("Horizontal", 5))
sketch5.addConstraint(Sketcher.Constraint("Vertical", 6))
sketch5.addConstraint(Sketcher.Constraint("Horizontal", 7))
sketch5.addConstraint(Sketcher.Constraint("Vertical", 8))
sketch5.addConstraint(Sketcher.Constraint("Horizontal", 9))
sketch5.addConstraint(Sketcher.Constraint("Vertical", 10))
sketch5.addConstraint(Sketcher.Constraint("Horizontal", 11))
sketch5.addConstraint(Sketcher.Constraint("Vertical", 12))
sketch5.addConstraint(Sketcher.Constraint("Horizontal", 13))
sketch5.addConstraint(Sketcher.Constraint("Vertical", 14))
sketch5.addConstraint(Sketcher.Constraint("Horizontal", 15))
sketch5.addConstraint(Sketcher.Constraint("Vertical", 16))
sketch5.addConstraint(Sketcher.Constraint("Horizontal", 17))
sketch5.addConstraint(Sketcher.Constraint("Vertical", 18))
sketch5.addConstraint(Sketcher.Constraint("Horizontal", 19))
sketch5.addConstraint(Sketcher.Constraint("Vertical", 20))
sketch5.addConstraint(Sketcher.Constraint("Horizontal", 21))
sketch5.addConstraint(Sketcher.Constraint("Vertical", 22))
sketch5.addConstraint(Sketcher.Constraint("Horizontal", 23))
sketch5.addConstraint(Sketcher.Constraint("Vertical", 24))
sketch5.addConstraint(Sketcher.Constraint("Horizontal", 25))
sketch5.addConstraint(Sketcher.Constraint("Vertical", 26))
sketch5.addConstraint(Sketcher.Constraint("Horizontal", 27))
sketch5.addConstraint(Sketcher.Constraint("Vertical", 28))
sketch5.addConstraint(Sketcher.Constraint("Horizontal", 29))
sketch5.addConstraint(Sketcher.Constraint("Vertical", 30))
sketch5.addConstraint(Sketcher.Constraint("Horizontal", 31))
sketch5.addConstraint(Sketcher.Constraint("Vertical", 32))
sketch5.addConstraint(Sketcher.Constraint("Horizontal", 33))
sketch5.addConstraint(Sketcher.Constraint("Vertical", 34))
sketch5.addConstraint(Sketcher.Constraint("Horizontal", 35))
sketch5.addConstraint(Sketcher.Constraint("Vertical", 36))
sketch5.addConstraint(Sketcher.Constraint("Horizontal", 37))
sketch5.addConstraint(Sketcher.Constraint("Vertical", 38))
sketch5.addConstraint(Sketcher.Constraint("Horizontal", 39))
sketch5.addConstraint(Sketcher.Constraint("Vertical", 40))
sketch5.addConstraint(Sketcher.Constraint("Horizontal", 41))
sketch5.addConstraint(Sketcher.Constraint("Vertical", 42))
sketch5.addConstraint(Sketcher.Constraint("Horizontal", 43))
sketch5.addConstraint(Sketcher.Constraint("Vertical", 44))
sketch5.addConstraint(Sketcher.Constraint("Horizontal", 45))
sketch5.addConstraint(Sketcher.Constraint("Vertical", 46))
sketch5.addConstraint(Sketcher.Constraint("Horizontal", 47))
sketch5.addConstraint(Sketcher.Constraint("Symmetric", 6, 2, 20, 2, -1, 1))
sketch5.addConstraint(Sketcher.Constraint("Symmetric", 4, 2, 22, 2, -1, 1))
sketch5.addConstraint(Sketcher.Constraint("Symmetric", 2, 2, 24, 2, -1, 1))
sketch5.addConstraint(Sketcher.Constraint("Symmetric", 0, 2, 26, 2, -1, 1))
sketch5.addConstraint(Sketcher.Constraint("Symmetric", 18, 2, 32, 2, -1, 1))
sketch5.addConstraint(Sketcher.Constraint("Symmetric", 16, 2, 34, 2, -1, 1))
sketch5.addConstraint(Sketcher.Constraint("Symmetric", 14, 2, 36, 2, -1, 1))
sketch5.addConstraint(Sketcher.Constraint("Symmetric", 12, 2, 38, 2, -1, 1))
sketch5.addConstraint(Sketcher.Constraint("Symmetric", 10, 2, 40, 2, -1, 1))
sketch5.addConstraint(Sketcher.Constraint("Symmetric", 8, 2, 42, 2, -1, 1))
sketch5.addConstraint(Sketcher.Constraint("Symmetric", 30, 2, 44, 2, -1, 1))
sketch5.addConstraint(Sketcher.Constraint("Symmetric", 28, 2, 46, 2, -1, 1))
sketch5.addConstraint(Sketcher.Constraint("Symmetric", 6, 2, 11, 2, -2))
sketch5.addConstraint(Sketcher.Constraint("Symmetric", 5, 2, 16, 2, -2))
sketch5.addConstraint(Sketcher.Constraint("Symmetric", 30, 2, 35, 2, -2))
sketch5.addConstraint(Sketcher.Constraint("Symmetric", 29, 2, 40, 2, -2))
sketch5.addConstraint(Sketcher.Constraint("Horizontal", 1, 2, 4, 2))
sketch5.addConstraint(Sketcher.Constraint("Horizontal", 3, 2, 6, 2))
sketch5.addConstraint(Sketcher.Constraint("Vertical", 11, 2, 12, 2))
sketch5.addConstraint(Sketcher.Constraint("Vertical", 10, 2, 13, 2))
sketch5.addConstraint(Sketcher.Constraint("Equal", 3, 5))
sketch5.addConstraint(Sketcher.Constraint("Equal", 27, 29))
sketch5.addConstraint(Sketcher.Constraint("Equal", 43, 0))
sketch5.addConstraint(Sketcher.Constraint("Equal", 47, 8))
sketch5.addConstraint(Sketcher.Constraint("Equal", 10, 12))
sketch5.addConstraint(Sketcher.Constraint("Equal", 14, 16))
sketch5.addConstraint(Sketcher.Constraint("DistanceX", 1, 1, 1, 2, 0.3))
sketch5.addConstraint(Sketcher.Constraint("DistanceX", 7, 2, 8, 2, 1.0))
sketch5.addConstraint(Sketcher.Constraint("DistanceY", 19, 2, 22, 2, 1.0))
sketch5.addConstraint(Sketcher.Constraint("DistanceX", 9, 1, 9, 2, 1.05))
sketch5.addConstraint(Sketcher.Constraint("DistanceX", 0, 2, -1, 1, 1.040057))
sketch5.addConstraint(Sketcher.Constraint("DistanceY", 12, 2, -1, 1, 0.740057))
sketch5.setExpression("Constraints[122]", "Params.sketch5_width")
sketch5.setExpression("Constraints[125]", "Params.sketch5_width2")
pad5 = body.newObject("PartDesign::Pad", "Pad004")
pad5.Profile = sketch5
pad5.setExpression("Length", "Params.pad5_length")
pad5.Reversed = True

# Sketch on XZ plane
sketch6 = body.newObject("Sketcher::SketchObject", "Sketch005")
sketch6.AttachmentSupport = (doc.getObject("XZ_Plane"), [""])
sketch6.MapMode = "FlatFace"
sketch6.AttachmentOffset = App.Placement(Vector(0, 0, -0.525), App.Rotation())
sketch6.addGeometry(Part.Circle(Vector(-0.2, -1.075, 0), Vector(0, 0, 1), 0.025), False)
sketch6.addConstraint(Sketcher.Constraint("Diameter", 0, 0.05))
sketch6.addConstraint(Sketcher.Constraint("DistanceX", 0, 3, -1, 1, 0.2))
sketch6.addConstraint(Sketcher.Constraint("DistanceY", 0, 3, -1, 1, 1.075))
sketch6.setExpression("Constraints[0]", "Params.sketch6_diameter")

# Sketch on an angled plane
sketch7 = body.newObject("Sketcher::SketchObject", "Sketch006")
sketch7.Placement = App.Placement(Vector(-0.30464, 0, -1.04448), App.Rotation(Vector(0.96, 0, -0.28), Vector(0, 1, 0), Vector(0.28, 0, 0.96), "ZXY"))
sketch7.addGeometry(Part.ArcOfCircle(Part.Circle(Vector(0.427176, 0.520656, 0), Vector(0, 0, 1), 0.318206), math.radians(15.370607), math.radians(179.217785)), False)
sketch7.addConstraint(Sketcher.Constraint("DistanceY", 0, 2, 0, 1, 0.08))
sketch7.addConstraint(Sketcher.Constraint("DistanceX", -1, 1, 0, 1, 0.734))
sketch7.addConstraint(Sketcher.Constraint("DistanceY", -1, 1, 0, 1, 0.605))
sketch7.addConstraint(Sketcher.Constraint("DistanceX", -1, 1, 0, 2, 0.109))
sketch7.addConstraint(Sketcher.Constraint("Radius", 0, 0.318206))
sketch7.setExpression("Constraints[0]", "Params.sketch7_height")
doc.recompute()

additivepipe = body.newObject("PartDesign::AdditivePipe", "AdditivePipe")
additivepipe.Profile = sketch6
additivepipe.Spine = (sketch7, ["Edge1"])

# Sketch on XZ plane
sketch8 = body.newObject("Sketcher::SketchObject", "Sketch007")
sketch8.AttachmentSupport = (doc.getObject("XZ_Plane"), [""])
sketch8.MapMode = "FlatFace"
sketch8.AttachmentOffset = App.Placement(Vector(0, 0, -0.525), App.Rotation())
sketch8.addGeometry(Part.Circle(Vector(-0.2, -0.675, 0), Vector(0, 0, 1), 0.025), False)
sketch8.addConstraint(Sketcher.Constraint("Diameter", 0, 0.05))
sketch8.addConstraint(Sketcher.Constraint("DistanceX", 0, 3, -1, 1, 0.2))
sketch8.addConstraint(Sketcher.Constraint("DistanceY", 0, 3, -1, 1, 0.675))
sketch8.setExpression("Constraints[0]", "Params.sketch8_diameter")

# Sketch on an angled plane
sketch9 = body.newObject("Sketcher::SketchObject", "Sketch008")
sketch9.Placement = App.Placement(Vector(0.16576, 0, -0.56832), App.Rotation(Vector(0.96, 0, 0.28), Vector(0, 1, 0), Vector(-0.28, 0, 0.96), "ZXY"))
sketch9.addGeometry(Part.ArcOfCircle(Part.Circle(Vector(-0.062742, 0.52049, 0), Vector(0, 0, 1), 0.318206), math.radians(15.370607), math.radians(179.217785)), False)
sketch9.addConstraint(Sketcher.Constraint("DistanceY", 0, 2, 0, 1, 0.08))
sketch9.addConstraint(Sketcher.Constraint("Radius", 0, 0.318206))
sketch9.addConstraint(Sketcher.Constraint("DistanceX", 0, 2, 0, 1, 0.625))
sketch9.addConstraint(Sketcher.Constraint("DistanceY", -1, 1, 0, 3, 0.52049))
sketch9.addConstraint(Sketcher.Constraint("DistanceX", -1, 1, 0, 1, 0.244082))
sketch9.setExpression("Constraints[0]", "Params.sketch9_height")
doc.recompute()

additivepipe2 = body.newObject("PartDesign::AdditivePipe", "AdditivePipe001")
additivepipe2.Profile = sketch8
additivepipe2.Spine = (sketch9, ["Edge1"])

# Sketch on XY plane
sketch10 = body.newObject("Sketcher::SketchObject", "Sketch009")
sketch10.AttachmentSupport = (doc.getObject("XY_Plane"), [""])
sketch10.MapMode = "FlatFace"
sketch10.addGeometry(Part.LineSegment(Vector(-0.000087, 3.075, 0), Vector(0, 3.1, 0)), False)
sketch10.addGeometry(Part.ArcOfCircle(Part.Circle(Vector(-0.008349, 0.700015, 0), Vector(0, 0, 1), 2.4), math.radians(89.80068), math.radians(184.78054)), False)
sketch10.addGeometry(Part.LineSegment(Vector(-2.4, 0.5, 0), Vector(-2.375087, 0.5, 0)), False)
sketch10.addGeometry(Part.LineSegment(Vector(-2.375087, 0.5, 0), Vector(-2.375087, 0.502083, 0)), False)
sketch10.addGeometry(Part.ArcOfCircle(Part.Circle(Vector(-0.008349, 0.700015, 0), Vector(0, 0, 1), 2.375), math.radians(89.80068), math.radians(184.78054)), False)
sketch10.addGeometry(Part.LineSegment(Vector(0, 3.1, 0), Vector(-0.009074, 0.491682, 0)), True)  # axis
sketch10.addConstraint(Sketcher.Constraint("Coincident", 0, 2, 1, 1))
sketch10.addConstraint(Sketcher.Constraint("Coincident", 1, 2, 2, 1))
sketch10.addConstraint(Sketcher.Constraint("Coincident", 2, 2, 3, 1))
sketch10.addConstraint(Sketcher.Constraint("Coincident", 3, 2, 4, 2))
sketch10.addConstraint(Sketcher.Constraint("Coincident", 4, 1, 0, 1))
sketch10.addConstraint(Sketcher.Constraint("Horizontal", 2))
sketch10.addConstraint(Sketcher.Constraint("Vertical", 3))
sketch10.addConstraint(Sketcher.Constraint("Coincident", 4, 3, 1, 3))
sketch10.addConstraint(Sketcher.Constraint("Coincident", 5, 1, 0, 2))
sketch10.addConstraint(Sketcher.Constraint("PointOnObject", 0, 2, -2))
sketch10.addConstraint(Sketcher.Constraint("Parallel", 0, 5))
sketch10.addConstraint(Sketcher.Constraint("Radius", 1, 2.4))
sketch10.addConstraint(Sketcher.Constraint("Radius", 4, 2.375))
sketch10.addConstraint(Sketcher.Constraint("DistanceY", -1, 1, 0, 2, 3.1))
sketch10.addConstraint(Sketcher.Constraint("DistanceX", 1, 2, -1, 1, 2.4))
sketch10.addConstraint(Sketcher.Constraint("DistanceY", -1, 1, 1, 2, 0.5))
sketch10.addConstraint(Sketcher.Constraint("DistanceX", 3, 2, 4, 1, 2.375))
sketch10.addConstraint(Sketcher.Constraint("DistanceY", 5, 2, 3, 2, 0.010401))
sketch10.addConstraint(Sketcher.Constraint("DistanceX", 2, 1, 2, 2, 0.024913))
sketch10.setExpression("Constraints[11]", "Params.sketch10_radius")
revolution = body.newObject("PartDesign::Revolution", "Revolution")
revolution.Profile = sketch10
revolution.ReferenceAxis = (sketch10, ["Axis0"])
revolution.setExpression("Angle", "Params.revolution_angle")

# Sketch on XZ plane
sketch11 = body.newObject("Sketcher::SketchObject", "Sketch010")
sketch11.AttachmentSupport = (doc.getObject("XZ_Plane"), [""])
sketch11.MapMode = "FlatFace"
sketch11.AttachmentOffset = App.Placement(Vector(0, 0, -0.5), App.Rotation())
sketch11.addGeometry(Part.Circle(Vector(-2.1, 2.1, 0), Vector(0, 0, 1), 0.25), False)
sketch11.addConstraint(Sketcher.Constraint("Diameter", 0, 0.5))
sketch11.addConstraint(Sketcher.Constraint("DistanceX", 0, 3, -1, 1, 2.1))
sketch11.addConstraint(Sketcher.Constraint("DistanceY", -1, 1, 0, 3, 2.1))
sketch11.setExpression("Constraints[0]", "Params.sketch11_diameter")
pocket1 = body.newObject("PartDesign::Pocket", "Pocket")
pocket1.Profile = sketch11
pocket1.setExpression("Length", "Params.pocket1_length")
pocket1.Reversed = True

doc.recompute()
